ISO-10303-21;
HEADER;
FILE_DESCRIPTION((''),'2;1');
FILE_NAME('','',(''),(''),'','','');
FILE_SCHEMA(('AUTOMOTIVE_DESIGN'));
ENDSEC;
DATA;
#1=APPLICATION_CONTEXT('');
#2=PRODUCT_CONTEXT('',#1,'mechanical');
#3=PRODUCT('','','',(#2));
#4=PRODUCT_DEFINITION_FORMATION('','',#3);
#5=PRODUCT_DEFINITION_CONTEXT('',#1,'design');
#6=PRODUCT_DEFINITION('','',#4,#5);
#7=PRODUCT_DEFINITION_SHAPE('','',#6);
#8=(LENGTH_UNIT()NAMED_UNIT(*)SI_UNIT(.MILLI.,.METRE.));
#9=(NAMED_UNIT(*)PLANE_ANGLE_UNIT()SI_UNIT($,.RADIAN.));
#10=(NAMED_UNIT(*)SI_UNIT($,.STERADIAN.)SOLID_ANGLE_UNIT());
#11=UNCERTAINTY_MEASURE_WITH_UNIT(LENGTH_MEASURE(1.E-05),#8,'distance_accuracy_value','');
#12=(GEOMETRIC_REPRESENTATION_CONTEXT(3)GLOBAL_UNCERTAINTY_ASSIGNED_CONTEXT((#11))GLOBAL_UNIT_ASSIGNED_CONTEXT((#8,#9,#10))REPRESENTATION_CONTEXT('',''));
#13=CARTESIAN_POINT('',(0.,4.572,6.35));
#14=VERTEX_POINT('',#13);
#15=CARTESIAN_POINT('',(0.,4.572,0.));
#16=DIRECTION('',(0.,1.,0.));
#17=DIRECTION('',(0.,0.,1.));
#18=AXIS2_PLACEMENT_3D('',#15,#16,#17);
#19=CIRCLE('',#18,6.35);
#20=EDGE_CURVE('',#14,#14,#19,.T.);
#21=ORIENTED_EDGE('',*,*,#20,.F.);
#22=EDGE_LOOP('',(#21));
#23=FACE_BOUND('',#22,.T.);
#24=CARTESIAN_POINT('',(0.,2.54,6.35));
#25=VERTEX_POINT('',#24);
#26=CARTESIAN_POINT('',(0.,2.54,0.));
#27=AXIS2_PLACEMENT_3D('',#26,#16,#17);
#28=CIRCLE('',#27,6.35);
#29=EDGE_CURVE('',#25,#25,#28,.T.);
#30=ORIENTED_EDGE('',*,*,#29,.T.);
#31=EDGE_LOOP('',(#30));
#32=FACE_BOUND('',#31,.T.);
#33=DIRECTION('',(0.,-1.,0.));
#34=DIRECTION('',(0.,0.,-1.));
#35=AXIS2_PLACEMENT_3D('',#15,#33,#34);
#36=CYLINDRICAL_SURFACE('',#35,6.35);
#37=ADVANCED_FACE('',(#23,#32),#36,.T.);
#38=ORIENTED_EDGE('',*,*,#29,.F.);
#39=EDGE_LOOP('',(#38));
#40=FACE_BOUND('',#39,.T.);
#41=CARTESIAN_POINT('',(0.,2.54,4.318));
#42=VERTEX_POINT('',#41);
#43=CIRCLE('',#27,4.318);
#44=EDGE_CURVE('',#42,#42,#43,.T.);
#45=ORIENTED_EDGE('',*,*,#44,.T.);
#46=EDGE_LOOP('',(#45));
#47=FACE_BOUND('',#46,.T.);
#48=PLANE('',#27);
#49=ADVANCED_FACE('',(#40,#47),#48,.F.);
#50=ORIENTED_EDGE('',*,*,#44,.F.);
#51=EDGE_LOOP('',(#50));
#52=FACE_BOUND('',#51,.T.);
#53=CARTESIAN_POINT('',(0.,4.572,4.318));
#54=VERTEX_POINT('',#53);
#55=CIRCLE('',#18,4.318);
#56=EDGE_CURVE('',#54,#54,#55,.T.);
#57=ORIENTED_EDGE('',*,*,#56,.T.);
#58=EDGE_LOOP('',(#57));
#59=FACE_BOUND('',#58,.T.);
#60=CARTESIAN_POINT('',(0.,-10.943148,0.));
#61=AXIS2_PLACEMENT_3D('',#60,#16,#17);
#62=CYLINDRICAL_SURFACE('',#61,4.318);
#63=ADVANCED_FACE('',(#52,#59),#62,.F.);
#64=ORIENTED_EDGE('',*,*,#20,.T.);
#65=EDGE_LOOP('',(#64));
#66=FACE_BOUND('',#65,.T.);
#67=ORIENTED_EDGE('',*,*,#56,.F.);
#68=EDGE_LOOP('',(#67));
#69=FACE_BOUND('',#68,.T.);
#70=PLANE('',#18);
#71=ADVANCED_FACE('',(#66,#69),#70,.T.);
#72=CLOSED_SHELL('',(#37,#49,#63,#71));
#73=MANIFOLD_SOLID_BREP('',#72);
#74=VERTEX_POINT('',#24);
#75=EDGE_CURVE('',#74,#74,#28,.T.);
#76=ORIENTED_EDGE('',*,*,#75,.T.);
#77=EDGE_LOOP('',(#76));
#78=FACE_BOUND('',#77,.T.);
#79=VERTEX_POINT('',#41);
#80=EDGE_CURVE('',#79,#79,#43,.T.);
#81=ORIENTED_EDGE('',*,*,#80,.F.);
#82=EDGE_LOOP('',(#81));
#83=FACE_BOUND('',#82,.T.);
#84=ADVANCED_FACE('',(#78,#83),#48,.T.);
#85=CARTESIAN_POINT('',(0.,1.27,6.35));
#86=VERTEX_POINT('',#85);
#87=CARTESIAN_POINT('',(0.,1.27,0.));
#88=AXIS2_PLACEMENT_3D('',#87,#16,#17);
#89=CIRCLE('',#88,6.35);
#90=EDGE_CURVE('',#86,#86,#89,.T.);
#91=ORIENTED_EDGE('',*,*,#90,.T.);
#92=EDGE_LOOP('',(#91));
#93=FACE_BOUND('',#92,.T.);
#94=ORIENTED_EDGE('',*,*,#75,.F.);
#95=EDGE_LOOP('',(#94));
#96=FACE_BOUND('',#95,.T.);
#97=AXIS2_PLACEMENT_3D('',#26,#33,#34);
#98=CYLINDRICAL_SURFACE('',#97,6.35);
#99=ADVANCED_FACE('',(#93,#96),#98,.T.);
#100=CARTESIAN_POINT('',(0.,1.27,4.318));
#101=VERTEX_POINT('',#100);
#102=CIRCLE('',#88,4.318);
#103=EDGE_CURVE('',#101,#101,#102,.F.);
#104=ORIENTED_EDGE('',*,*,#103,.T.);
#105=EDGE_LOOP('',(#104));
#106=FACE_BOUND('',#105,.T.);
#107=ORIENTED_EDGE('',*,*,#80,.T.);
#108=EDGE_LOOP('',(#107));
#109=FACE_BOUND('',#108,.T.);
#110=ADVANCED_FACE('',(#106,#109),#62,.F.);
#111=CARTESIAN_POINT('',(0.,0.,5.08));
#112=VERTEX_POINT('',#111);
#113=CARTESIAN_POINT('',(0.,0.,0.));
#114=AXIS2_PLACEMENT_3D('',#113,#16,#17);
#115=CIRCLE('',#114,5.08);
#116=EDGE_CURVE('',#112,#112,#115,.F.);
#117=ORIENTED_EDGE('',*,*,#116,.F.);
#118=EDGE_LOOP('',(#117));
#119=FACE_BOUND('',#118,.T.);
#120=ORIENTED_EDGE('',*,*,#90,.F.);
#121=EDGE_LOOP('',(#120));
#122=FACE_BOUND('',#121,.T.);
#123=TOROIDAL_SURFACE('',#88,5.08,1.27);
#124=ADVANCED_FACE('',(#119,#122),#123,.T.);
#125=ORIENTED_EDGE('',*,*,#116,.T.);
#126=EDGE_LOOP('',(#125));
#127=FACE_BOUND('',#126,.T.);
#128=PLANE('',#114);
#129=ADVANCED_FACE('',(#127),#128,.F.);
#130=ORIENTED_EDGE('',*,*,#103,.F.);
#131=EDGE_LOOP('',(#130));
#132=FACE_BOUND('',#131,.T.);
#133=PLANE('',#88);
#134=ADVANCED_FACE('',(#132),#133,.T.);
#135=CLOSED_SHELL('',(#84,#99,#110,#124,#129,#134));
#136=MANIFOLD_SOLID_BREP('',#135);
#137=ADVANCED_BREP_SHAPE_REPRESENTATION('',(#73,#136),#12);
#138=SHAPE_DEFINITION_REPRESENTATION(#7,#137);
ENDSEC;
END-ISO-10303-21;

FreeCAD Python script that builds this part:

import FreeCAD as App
import Part
import Sketcher

V = App.Vector
Q = App.Units.Quantity


def edges_at(feature, points):
    """Names of the edges that pass closest to the given points."""
    edges = feature.Shape.Edges
    near = lambda p: min(range(len(edges)), key=lambda i: edges[i].distToShape(Part.Vertex(*p))[0])
    return sorted({f"Edge{near(p) + 1}" for p in points})

doc = App.newDocument("Part")
body = doc.addObject("PartDesign::Body", "Body")

# Sketch on XZ plane
sketch1 = doc.addObject("Sketcher::SketchObject", "Sketch")
body.addObject(sketch1)
sketch1.AttachmentSupport = (doc.XZ_Plane, [""])
sketch1.MapMode = "FlatFace"
sketch1.addGeometry(Part.Circle(V(0, 0, 0), V(0, 0, 1), 6), False)
sketch1.addConstraint([
    Sketcher.Constraint("Coincident", 0, 3, -1, 1),
    Sketcher.Constraint("Diameter", 0, Q("0.5 in")),
])
pad1 = doc.addObject("PartDesign::Pad", "Pad")
body.addObject(pad1)
pad1.Profile = sketch1
pad1.Length = Q("0.1 in")
pad1.Reversed = True
doc.recompute()

fillet = doc.addObject("PartDesign::Fillet", "Fillet")
body.addObject(fillet)
fillet.Base = (pad1, edges_at(pad1, [(-6.35, 0, 0)]))
fillet.Radius = Q("0.05 in")

# Sketch on XZ plane
sketch2 = doc.addObject("Sketcher::SketchObject", "Sketch001")
body.addObject(sketch2)
sketch2.AttachmentSupport = (doc.XZ_Plane, [""])
sketch2.MapMode = "FlatFace"
sketch2.AttachmentOffset = App.Placement(V(0, 0, -0.1 * 25.4), App.Rotation())
sketch2.addGeometry(Part.Circle(V(0, 0, 0), V(0, 0, 1), 3.4), False)
sketch2.addConstraint([
    Sketcher.Constraint("Coincident", 0, 3, -1, 1),
    Sketcher.Constraint("Diameter", 0, Q("0.27 in")),
])
pocket1 = doc.addObject("PartDesign::Pocket", "Pocket")
body.addObject(pocket1)
pocket1.Profile = sketch2
pocket1.Length = Q("0.05 in")
pocket1.Reversed = True
body2 = doc.addObject("PartDesign::Body", "Body001")

# Sketch on XZ plane
sketch3 = doc.addObject("Sketcher::SketchObject", "Sketch002")
body2.addObject(sketch3)
sketch3.AttachmentSupport = (doc.getObject("XZ_Plane001"), [""])
sketch3.MapMode = "FlatFace"
sketch3.AttachmentOffset = App.Placement(V(0, 0, -0.1 * 25.4), App.Rotation())
sketch3.addGeometry([
    Part.Circle(V(0, 0, 0), V(0, 0, 1), 6.3),
    Part.Circle(V(0, 0, 0), V(0, 0, 1), 3.4),
], False)
sketch3.addConstraint([
    Sketcher.Constraint("Coincident", 0, 3, -1, 1),
    Sketcher.Constraint("Coincident", 1, 3, -1, 1),
    Sketcher.Constraint("Diameter", 0, Q("0.5 in")),
    Sketcher.Constraint("Diameter", 1, Q("0.27 in")),
])
pad2 = doc.addObject("PartDesign::Pad", "Pad001")
body2.addObject(pad2)
pad2.Profile = sketch3
pad2.Length = Q("0.08 in")
pad2.Reversed = True
body3 = doc.addObject("PartDesign::Body", "Body002")

# Sketch on XZ plane
sketch4 = doc.addObject("Sketcher::SketchObject", "Sketch003")
body3.addObject(sketch4)
sketch4.AttachmentSupport = (doc.getObject("XZ_Plane002"), [""])
sketch4.MapMode = "FlatFace"
sketch4.AttachmentOffset = App.Placement(V(0, 0, -0.05 * 25.4), App.Rotation())
sketch4.addGeometry(Part.Circle(V(0, 0, 0), V(0, 0, 1), 4), False)
sketch4.addConstraint([
    Sketcher.Constraint("Coincident", 0, 3, -1, 1),
    Sketcher.Constraint("Diameter", 0, Q("0.3125 in")),
])
pad3 = doc.addObject("PartDesign::Pad", "Pad002")
body3.addObject(pad3)
pad3.Profile = sketch4
pad3.Length = Q("0.13 in")
pad3.Reversed = True
doc.recompute()

body4 = doc.addObject("PartDesign::Body", "Body003")
body4.BaseFeature = body3
boolean = doc.addObject("PartDesign::Boolean", "Boolean")
body.addObject(boolean)
boolean.Type = "Cut"
boolean.addObjects([body4])
doc.recompute()

boolean2 = doc.addObject("PartDesign::Boolean", "Boolean001")
body2.addObject(boolean2)
boolean2.Type = "Cut"
boolean2.addObjects([body3])
body5 = doc.addObject("PartDesign::Body", "Body004")

# Sketch on XZ plane
sketch5 = doc.addObject("Sketcher::SketchObject", "Sketch004")
body5.addObject(sketch5)
sketch5.AttachmentSupport = (doc.getObject("XZ_Plane004"), [""])
sketch5.MapMode = "FlatFace"
sketch5.AttachmentOffset = App.Placement(V(0, 0, -0.18 * 25.4), App.Rotation())
sketch5.addGeometry(Part.Circle(V(0, 0, 0), V(0, 0, 1), 4.3), False)
sketch5.addConstraint([
    Sketcher.Constraint("Coincident", 0, 3, -1, 1),
    Sketcher.Constraint("Diameter", 0, Q("0.34 in")),
])
pad4 = doc.addObject("PartDesign::Pad", "Pad003")
body5.addObject(pad4)
pad4.Profile = sketch5
pad4.Length = Q("0.13 in")
doc.recompute()

body6 = doc.addObject("PartDesign::Body", "Body005")
body6.BaseFeature = body5
boolean3 = doc.addObject("PartDesign::Boolean", "Boolean002")
body.addObject(boolean3)
boolean3.Type = "Cut"
boolean3.addObjects([body6])
doc.recompute()

boolean4 = doc.addObject("PartDesign::Boolean", "Boolean003")
body2.addObject(boolean4)
boolean4.Type = "Cut"
boolean4.addObjects([body5])

doc.recompute()
